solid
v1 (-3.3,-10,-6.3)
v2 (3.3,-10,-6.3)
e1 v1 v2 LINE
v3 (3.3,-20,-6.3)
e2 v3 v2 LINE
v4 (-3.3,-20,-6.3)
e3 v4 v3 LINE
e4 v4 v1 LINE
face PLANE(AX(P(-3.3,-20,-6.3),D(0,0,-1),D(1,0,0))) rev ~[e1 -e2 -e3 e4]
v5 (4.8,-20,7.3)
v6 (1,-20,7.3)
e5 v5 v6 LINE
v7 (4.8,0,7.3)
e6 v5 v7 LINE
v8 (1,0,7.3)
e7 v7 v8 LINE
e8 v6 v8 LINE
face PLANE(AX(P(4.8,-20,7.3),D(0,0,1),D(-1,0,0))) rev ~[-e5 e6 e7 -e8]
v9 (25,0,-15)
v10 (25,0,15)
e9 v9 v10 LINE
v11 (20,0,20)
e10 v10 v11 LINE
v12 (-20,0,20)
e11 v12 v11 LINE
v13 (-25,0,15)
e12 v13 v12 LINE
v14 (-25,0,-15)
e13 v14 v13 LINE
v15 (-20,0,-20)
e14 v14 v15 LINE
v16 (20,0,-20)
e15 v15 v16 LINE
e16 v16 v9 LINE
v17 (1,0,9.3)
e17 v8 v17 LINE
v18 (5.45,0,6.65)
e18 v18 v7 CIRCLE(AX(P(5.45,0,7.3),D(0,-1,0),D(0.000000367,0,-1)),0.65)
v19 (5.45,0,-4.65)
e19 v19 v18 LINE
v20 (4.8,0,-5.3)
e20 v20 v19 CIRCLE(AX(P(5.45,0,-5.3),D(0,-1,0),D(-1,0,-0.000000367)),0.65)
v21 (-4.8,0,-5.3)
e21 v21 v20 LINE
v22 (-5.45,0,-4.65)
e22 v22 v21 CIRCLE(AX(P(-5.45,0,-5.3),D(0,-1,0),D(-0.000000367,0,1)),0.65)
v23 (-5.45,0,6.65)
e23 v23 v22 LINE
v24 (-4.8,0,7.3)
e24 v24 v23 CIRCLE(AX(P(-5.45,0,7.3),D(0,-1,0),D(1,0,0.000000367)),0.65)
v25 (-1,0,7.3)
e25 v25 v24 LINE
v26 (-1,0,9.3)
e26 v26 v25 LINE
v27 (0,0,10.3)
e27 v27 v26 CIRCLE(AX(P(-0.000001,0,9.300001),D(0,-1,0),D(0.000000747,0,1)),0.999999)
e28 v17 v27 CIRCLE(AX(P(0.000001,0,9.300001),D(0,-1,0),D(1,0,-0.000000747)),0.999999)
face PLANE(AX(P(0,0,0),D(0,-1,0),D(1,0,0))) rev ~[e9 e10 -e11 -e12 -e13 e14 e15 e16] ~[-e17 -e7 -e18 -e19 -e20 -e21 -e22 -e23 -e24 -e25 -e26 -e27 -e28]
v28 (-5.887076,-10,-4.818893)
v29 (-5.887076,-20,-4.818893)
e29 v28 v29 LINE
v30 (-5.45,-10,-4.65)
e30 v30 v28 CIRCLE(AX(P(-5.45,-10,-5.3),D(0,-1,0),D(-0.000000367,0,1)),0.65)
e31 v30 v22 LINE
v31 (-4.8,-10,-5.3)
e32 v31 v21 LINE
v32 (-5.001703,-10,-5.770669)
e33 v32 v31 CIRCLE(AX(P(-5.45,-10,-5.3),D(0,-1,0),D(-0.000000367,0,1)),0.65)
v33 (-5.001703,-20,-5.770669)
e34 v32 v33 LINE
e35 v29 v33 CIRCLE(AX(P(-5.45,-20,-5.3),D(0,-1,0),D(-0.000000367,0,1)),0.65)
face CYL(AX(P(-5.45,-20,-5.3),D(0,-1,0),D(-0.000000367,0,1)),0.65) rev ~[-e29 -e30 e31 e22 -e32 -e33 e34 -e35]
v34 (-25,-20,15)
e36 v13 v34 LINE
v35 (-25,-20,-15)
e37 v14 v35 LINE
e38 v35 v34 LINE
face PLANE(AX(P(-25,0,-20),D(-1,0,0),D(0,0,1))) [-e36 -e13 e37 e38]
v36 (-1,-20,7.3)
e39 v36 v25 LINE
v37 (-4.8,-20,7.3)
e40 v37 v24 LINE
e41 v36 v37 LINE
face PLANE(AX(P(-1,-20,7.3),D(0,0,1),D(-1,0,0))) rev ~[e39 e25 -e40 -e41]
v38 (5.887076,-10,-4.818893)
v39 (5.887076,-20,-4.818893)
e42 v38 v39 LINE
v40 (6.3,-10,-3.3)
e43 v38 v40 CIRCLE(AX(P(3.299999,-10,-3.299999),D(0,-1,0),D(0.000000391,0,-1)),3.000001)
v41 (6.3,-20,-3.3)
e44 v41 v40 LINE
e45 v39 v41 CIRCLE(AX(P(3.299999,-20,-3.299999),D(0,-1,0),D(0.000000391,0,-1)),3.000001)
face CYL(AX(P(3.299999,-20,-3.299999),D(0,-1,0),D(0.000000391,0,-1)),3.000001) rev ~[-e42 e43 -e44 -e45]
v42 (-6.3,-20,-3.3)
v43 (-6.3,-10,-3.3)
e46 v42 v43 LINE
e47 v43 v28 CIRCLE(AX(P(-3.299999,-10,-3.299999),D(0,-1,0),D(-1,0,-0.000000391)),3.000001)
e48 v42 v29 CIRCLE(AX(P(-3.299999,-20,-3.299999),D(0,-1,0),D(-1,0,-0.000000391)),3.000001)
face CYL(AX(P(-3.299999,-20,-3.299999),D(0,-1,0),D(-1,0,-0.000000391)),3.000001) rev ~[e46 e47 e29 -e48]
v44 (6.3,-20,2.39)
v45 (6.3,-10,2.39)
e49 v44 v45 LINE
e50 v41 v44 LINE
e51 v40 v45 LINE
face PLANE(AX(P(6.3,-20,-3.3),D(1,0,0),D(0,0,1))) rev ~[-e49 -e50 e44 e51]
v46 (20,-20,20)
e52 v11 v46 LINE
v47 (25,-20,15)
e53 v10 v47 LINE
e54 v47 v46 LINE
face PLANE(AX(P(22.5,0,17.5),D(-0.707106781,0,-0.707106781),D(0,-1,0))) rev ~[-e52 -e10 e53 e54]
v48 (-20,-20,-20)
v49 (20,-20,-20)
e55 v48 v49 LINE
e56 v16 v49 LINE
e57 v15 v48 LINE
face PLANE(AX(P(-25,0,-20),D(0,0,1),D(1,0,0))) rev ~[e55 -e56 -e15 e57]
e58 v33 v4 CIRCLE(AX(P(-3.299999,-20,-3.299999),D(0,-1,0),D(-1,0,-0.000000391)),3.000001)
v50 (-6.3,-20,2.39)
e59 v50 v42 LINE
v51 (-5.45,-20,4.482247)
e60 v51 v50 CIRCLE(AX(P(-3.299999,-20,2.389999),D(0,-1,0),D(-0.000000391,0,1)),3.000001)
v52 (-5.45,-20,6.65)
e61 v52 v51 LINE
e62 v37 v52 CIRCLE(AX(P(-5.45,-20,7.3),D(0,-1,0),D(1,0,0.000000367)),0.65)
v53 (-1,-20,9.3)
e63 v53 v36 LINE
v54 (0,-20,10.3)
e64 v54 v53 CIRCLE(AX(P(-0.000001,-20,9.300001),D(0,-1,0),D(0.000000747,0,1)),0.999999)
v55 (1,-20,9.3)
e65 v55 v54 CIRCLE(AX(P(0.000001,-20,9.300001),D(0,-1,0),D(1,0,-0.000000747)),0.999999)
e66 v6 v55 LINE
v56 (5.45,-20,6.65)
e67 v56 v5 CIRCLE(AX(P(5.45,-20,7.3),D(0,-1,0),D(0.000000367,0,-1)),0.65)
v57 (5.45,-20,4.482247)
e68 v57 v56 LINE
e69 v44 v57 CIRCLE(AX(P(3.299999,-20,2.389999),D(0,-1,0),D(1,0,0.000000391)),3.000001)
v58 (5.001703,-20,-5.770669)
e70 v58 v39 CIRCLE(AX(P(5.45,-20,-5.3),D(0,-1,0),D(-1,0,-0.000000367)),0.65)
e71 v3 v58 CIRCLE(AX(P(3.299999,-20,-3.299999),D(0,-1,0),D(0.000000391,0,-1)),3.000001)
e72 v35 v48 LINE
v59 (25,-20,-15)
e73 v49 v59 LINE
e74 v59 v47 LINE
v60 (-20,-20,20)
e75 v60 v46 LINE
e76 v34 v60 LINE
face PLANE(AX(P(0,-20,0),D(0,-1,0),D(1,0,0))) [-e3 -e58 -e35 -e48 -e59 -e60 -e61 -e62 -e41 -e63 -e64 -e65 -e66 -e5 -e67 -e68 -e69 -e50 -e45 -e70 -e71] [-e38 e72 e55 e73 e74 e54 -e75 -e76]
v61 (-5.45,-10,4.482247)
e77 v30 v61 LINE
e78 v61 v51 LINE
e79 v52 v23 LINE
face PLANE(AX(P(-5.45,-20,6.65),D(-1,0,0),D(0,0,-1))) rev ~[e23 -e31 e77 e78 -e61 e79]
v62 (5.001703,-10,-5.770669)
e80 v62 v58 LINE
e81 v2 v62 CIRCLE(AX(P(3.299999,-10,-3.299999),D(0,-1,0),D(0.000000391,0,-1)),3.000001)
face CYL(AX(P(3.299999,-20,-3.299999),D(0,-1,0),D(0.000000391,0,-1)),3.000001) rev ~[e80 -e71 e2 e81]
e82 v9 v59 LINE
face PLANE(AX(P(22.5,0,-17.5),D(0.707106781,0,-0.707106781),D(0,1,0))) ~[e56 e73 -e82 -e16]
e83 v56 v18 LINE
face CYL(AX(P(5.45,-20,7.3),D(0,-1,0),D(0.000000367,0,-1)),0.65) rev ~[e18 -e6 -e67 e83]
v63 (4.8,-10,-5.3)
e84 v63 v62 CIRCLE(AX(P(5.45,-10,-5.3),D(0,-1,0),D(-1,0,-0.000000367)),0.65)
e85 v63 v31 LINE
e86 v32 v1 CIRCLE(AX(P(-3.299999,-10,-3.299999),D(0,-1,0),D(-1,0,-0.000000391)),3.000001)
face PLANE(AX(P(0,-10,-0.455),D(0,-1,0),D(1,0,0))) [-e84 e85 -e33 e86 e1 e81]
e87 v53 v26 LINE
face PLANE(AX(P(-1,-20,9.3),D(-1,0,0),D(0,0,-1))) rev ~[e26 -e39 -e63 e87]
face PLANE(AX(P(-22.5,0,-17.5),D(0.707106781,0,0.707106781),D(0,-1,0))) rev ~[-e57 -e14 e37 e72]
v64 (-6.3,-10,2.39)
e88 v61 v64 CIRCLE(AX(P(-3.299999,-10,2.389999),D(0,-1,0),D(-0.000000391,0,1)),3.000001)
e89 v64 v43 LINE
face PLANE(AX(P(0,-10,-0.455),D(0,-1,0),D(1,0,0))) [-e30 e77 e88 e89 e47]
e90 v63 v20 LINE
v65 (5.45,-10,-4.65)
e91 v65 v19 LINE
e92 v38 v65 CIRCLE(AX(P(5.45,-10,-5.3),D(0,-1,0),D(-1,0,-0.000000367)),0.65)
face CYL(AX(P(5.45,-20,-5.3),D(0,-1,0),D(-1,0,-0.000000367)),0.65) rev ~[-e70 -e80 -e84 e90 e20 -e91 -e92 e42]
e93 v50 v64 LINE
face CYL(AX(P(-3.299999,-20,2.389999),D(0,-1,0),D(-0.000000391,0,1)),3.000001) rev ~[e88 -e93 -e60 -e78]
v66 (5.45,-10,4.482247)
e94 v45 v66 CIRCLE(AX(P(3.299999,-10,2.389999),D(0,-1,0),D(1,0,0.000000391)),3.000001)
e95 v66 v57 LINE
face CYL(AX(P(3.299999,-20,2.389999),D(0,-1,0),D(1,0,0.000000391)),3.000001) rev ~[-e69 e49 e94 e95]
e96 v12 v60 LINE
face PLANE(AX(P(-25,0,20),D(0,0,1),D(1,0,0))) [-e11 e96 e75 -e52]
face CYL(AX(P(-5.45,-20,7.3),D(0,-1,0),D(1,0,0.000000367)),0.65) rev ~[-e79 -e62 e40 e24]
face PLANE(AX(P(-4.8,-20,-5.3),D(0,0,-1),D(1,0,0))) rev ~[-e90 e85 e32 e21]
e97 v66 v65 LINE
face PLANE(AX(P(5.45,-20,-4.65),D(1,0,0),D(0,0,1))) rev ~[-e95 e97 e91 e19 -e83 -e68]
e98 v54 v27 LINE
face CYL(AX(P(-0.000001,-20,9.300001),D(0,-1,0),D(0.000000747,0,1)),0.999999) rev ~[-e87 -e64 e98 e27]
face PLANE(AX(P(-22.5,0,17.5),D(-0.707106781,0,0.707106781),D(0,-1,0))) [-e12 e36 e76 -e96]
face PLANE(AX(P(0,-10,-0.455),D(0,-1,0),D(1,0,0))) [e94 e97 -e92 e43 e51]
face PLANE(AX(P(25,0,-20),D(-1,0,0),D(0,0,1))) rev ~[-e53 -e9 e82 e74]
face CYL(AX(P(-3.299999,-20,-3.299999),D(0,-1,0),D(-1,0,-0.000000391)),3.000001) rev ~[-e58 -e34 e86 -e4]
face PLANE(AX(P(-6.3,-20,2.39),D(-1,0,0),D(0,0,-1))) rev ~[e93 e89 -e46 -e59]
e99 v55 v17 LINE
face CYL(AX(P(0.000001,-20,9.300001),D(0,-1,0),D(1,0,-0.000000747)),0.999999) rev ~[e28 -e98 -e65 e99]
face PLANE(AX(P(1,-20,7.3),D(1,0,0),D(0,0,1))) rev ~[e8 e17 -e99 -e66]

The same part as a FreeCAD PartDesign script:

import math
import FreeCAD as App
import Part
import Sketcher

V = App.Vector


def edges_at(feature, points):
    """Names of the edges that pass closest to the given points."""
    edges = feature.Shape.Edges
    near = lambda p: min(range(len(edges)), key=lambda i: edges[i].distToShape(Part.Vertex(*p))[0])
    return sorted({f"Edge{near(p) + 1}" for p in points})


def add_polygon(sketch, points):
    """Adds a closed chain of lines whose ends are joined by coincident constraints."""
    first, n = sketch.GeometryCount, len(points)
    for a, b in zip(points, points[1:] + points[:1]):
        sketch.addGeometry(Part.LineSegment(App.Vector(*a, 0), App.Vector(*b, 0)), False)
    for i in range(n):
        sketch.addConstraint(Sketcher.Constraint("Coincident", first + i, 2, first + (i + 1) % n, 1))

doc = App.newDocument("Part")
body = doc.addObject("PartDesign::Body", "Body")

# Sketch on XZ plane
sketch1 = body.newObject("Sketcher::SketchObject", "Sketch")
sketch1.AttachmentSupport = (doc.getObject("XZ_Plane"), [""])
sketch1.MapMode = "FlatFace"
add_polygon(sketch1, [(-25, 20), (-25, -20), (25, -20), (25, 20)])  # lines 0-3
sketch1.addConstraint([
    Sketcher.Constraint("Vertical", 0),
    Sketcher.Constraint("Horizontal", 1),
    Sketcher.Constraint("Vertical", 2),
    Sketcher.Constraint("Horizontal", 3),
    Sketcher.Constraint("Symmetric", 0, 2, 2, 2, -1, 1),
    Sketcher.Constraint("DistanceX", 1, 1, 1, 2, 50.0),
    Sketcher.Constraint("DistanceY", 0, 2, 0, 1, 40.0),
])
pad1 = body.newObject("PartDesign::Pad", "Pad")
pad1.Profile = sketch1
pad1.Length = 20
doc.recompute()

chamfer = body.newObject("PartDesign::Chamfer", "Chamfer")
chamfer.Base = (pad1, edges_at(pad1, [
    (-25, -10, 20),
    (25, -10, 20),
    (-25, -10, -20),
    (25, -10, -20),
]))
chamfer.Size = 5

# Sketch on XZ plane
sketch2 = body.newObject("Sketcher::SketchObject", "Sketch001")
sketch2.AttachmentSupport = (doc.getObject("XZ_Plane"), [""])
sketch2.MapMode = "FlatFace"
sketch2.AttachmentOffset = App.Placement(V(0, 0, 20), App.Rotation())
sketch2.addGeometry([
    Part.LineSegment(V(-1, 7.3, 0), V(-4.8, 7.3, 0)),  # 0
    Part.ArcOfCircle(Part.Circle(V(-5.4, 7.3, 0), V(0, 0, 1), 0.6), math.radians(0), math.radians(270)),  # 1
    Part.LineSegment(V(-5.5, 6.7, 0), V(-5.5, -4.7, 0)),  # 2
    Part.ArcOfCircle(Part.Circle(V(-5.4, -5.3, 0), V(0, 0, 1), 0.6), math.radians(90), math.radians(360)),  # 3
    Part.LineSegment(V(-4.8, -5.3, 0), V(4.8, -5.3, 0)),  # 4
    Part.ArcOfCircle(Part.Circle(V(5.4, -5.3, 0), V(0, 0, 1), 0.6), math.radians(-180), math.radians(90)),  # 5
    Part.LineSegment(V(5.5, -4.7, 0), V(5.5, 6.7, 0)),  # 6
    Part.ArcOfCircle(Part.Circle(V(5.4, 7.3, 0), V(0, 0, 1), 0.6), math.radians(-90), math.radians(180)),  # 7
    Part.LineSegment(V(4.8, 7.3, 0), V(1, 7.3, 0)),  # 8
    Part.LineSegment(V(1, 7.3, 0), V(1, 9.3, 0)),  # 9
    Part.ArcOfCircle(Part.Circle(V(0, 9.3, 0), V(0, 0, 1), 1), math.radians(0), math.radians(90)),  # 10
    Part.ArcOfCircle(Part.Circle(V(0, 9.3, 0), V(0, 0, 1), 1), math.radians(90), math.radians(180)),  # 11
    Part.LineSegment(V(-1, 9.3, 0), V(-1, 7.3, 0)),  # 12
], False)
sketch2.addConstraint([
    Sketcher.Constraint("Coincident", 0, 2, 1, 1),
    Sketcher.Constraint("Coincident", 1, 2, 2, 1),
    Sketcher.Constraint("Coincident", 2, 2, 3, 1),
    Sketcher.Constraint("Coincident", 3, 2, 4, 1),
    Sketcher.Constraint("Coincident", 4, 2, 5, 1),
    Sketcher.Constraint("Coincident", 5, 2, 6, 1),
    Sketcher.Constraint("Coincident", 6, 2, 7, 1),
    Sketcher.Constraint("Coincident", 7, 2, 8, 1),
    Sketcher.Constraint("Coincident", 8, 2, 9, 1),
    Sketcher.Constraint("Tangent", 9, 2, 10, 1),
    Sketcher.Constraint("Tangent", 10, 2, 11, 1),
    Sketcher.Constraint("Tangent", 11, 2, 12, 1),
    Sketcher.Constraint("Coincident", 12, 2, 0, 1),
    Sketcher.Constraint("Horizontal", 0),
    Sketcher.Constraint("Vertical", 2),
    Sketcher.Constraint("Horizontal", 4),
    Sketcher.Constraint("Vertical", 6),
    Sketcher.Constraint("Horizontal", 8),
    Sketcher.Constraint("Vertical", 9),
    Sketcher.Constraint("Vertical", 12),
    Sketcher.Constraint("Equal", 1, 3),
    Sketcher.Constraint("Equal", 3, 5),
    Sketcher.Constraint("Equal", 5, 7),
    Sketcher.Constraint("Equal", 10, 11),
    Sketcher.Constraint("Symmetric", 3, 3, 5, 3, -2),
    Sketcher.Constraint("Symmetric", 1, 3, 7, 3, -2),
    Sketcher.Constraint("Symmetric", 8, 2, 12, 2, -2),
    Sketcher.Constraint("PointOnObject", 10, 2, -2),
    Sketcher.Constraint("Horizontal", 7, 3, 0, 2),
    Sketcher.Constraint("Horizontal", 5, 3, 3, 2),
    Sketcher.Constraint("Vertical", 1, 3, 3, 3),
    Sketcher.Constraint("Vertical", 3, 3, 1, 2),
    Sketcher.Constraint("Vertical", 7, 3, 5, 2),
    Sketcher.Constraint("Radius", 10, 0.999999),
    Sketcher.Constraint("DistanceY", 9, 1, 9, 2, 2.0),
    Sketcher.Constraint("Radius", 1, 0.65),
    Sketcher.Constraint("DistanceX", 0, 2, 0, 1, 3.8),
    Sketcher.Constraint("DistanceY", 2, 2, 2, 1, 11.3),
    Sketcher.Constraint("DistanceY", -1, 1, 1, 3, 7.3),
])
pocket1 = body.newObject("PartDesign::Pocket", "Pocket")
pocket1.Profile = sketch2
pocket1.Length = 20

# Sketch on XZ plane
sketch3 = body.newObject("Sketcher::SketchObject", "Sketch002")
sketch3.AttachmentSupport = (doc.getObject("XZ_Plane"), [""])
sketch3.MapMode = "FlatFace"
sketch3.AttachmentOffset = App.Placement(V(0, 0, 20), App.Rotation())
sketch3.addGeometry([
    Part.ArcOfCircle(Part.Circle(V(-3.3, -3.3, 0), V(0, 0, 1), 3), math.radians(-180), math.radians(-90)),  # 0
    Part.LineSegment(V(-3.3, -6.3, 0), V(3.3, -6.3, 0)),  # 1
    Part.ArcOfCircle(Part.Circle(V(3.3, -3.3, 0), V(0, 0, 1), 3), math.radians(-90), math.radians(0)),  # 2
    Part.LineSegment(V(6.3, -3.3, 0), V(6.3, 2.4, 0)),  # 3
    Part.ArcOfCircle(Part.Circle(V(3.3, 2.4, 0), V(0, 0, 1), 3), math.radians(0), math.radians(90)),  # 4
    Part.LineSegment(V(3.3, 5.4, 0), V(-3.3, 5.4, 0)),  # 5
    Part.ArcOfCircle(Part.Circle(V(-3.3, 2.4, 0), V(0, 0, 1), 3), math.radians(90), math.radians(180)),  # 6
    Part.LineSegment(V(-6.3, 2.4, 0), V(-6.3, -3.3, 0)),  # 7
], False)
sketch3.addConstraint([
    Sketcher.Constraint("Tangent", 0, 2, 1, 1),
    Sketcher.Constraint("Tangent", 1, 2, 2, 1),
    Sketcher.Constraint("Tangent", 2, 2, 3, 1),
    Sketcher.Constraint("Tangent", 3, 2, 4, 1),
    Sketcher.Constraint("Tangent", 4, 2, 5, 1),
    Sketcher.Constraint("Tangent", 5, 2, 6, 1),
    Sketcher.Constraint("Tangent", 6, 2, 7, 1),
    Sketcher.Constraint("Tangent", 7, 2, 0, 1),
    Sketcher.Constraint("Horizontal", 1),
    Sketcher.Constraint("Vertical", 3),
    Sketcher.Constraint("Horizontal", 5),
    Sketcher.Constraint("Vertical", 7),
    Sketcher.Constraint("Equal", 0, 2),
    Sketcher.Constraint("Equal", 2, 4),
    Sketcher.Constraint("Equal", 4, 6),
    Sketcher.Constraint("Radius", 0, 3.000001),
    Sketcher.Constraint("DistanceX", 1, 1, 1, 2, 6.6),
    Sketcher.Constraint("DistanceY", 3, 1, 3, 2, 5.69),
    Sketcher.Constraint("DistanceX", 0, 3, -1, 1, 3.299999),
    Sketcher.Constraint("DistanceY", 0, 3, -1, 1, 3.299999),
])
pocket2 = body.newObject("PartDesign::Pocket", "Pocket001")
pocket2.Profile = sketch3
pocket2.Length = 10

doc.recompute()
